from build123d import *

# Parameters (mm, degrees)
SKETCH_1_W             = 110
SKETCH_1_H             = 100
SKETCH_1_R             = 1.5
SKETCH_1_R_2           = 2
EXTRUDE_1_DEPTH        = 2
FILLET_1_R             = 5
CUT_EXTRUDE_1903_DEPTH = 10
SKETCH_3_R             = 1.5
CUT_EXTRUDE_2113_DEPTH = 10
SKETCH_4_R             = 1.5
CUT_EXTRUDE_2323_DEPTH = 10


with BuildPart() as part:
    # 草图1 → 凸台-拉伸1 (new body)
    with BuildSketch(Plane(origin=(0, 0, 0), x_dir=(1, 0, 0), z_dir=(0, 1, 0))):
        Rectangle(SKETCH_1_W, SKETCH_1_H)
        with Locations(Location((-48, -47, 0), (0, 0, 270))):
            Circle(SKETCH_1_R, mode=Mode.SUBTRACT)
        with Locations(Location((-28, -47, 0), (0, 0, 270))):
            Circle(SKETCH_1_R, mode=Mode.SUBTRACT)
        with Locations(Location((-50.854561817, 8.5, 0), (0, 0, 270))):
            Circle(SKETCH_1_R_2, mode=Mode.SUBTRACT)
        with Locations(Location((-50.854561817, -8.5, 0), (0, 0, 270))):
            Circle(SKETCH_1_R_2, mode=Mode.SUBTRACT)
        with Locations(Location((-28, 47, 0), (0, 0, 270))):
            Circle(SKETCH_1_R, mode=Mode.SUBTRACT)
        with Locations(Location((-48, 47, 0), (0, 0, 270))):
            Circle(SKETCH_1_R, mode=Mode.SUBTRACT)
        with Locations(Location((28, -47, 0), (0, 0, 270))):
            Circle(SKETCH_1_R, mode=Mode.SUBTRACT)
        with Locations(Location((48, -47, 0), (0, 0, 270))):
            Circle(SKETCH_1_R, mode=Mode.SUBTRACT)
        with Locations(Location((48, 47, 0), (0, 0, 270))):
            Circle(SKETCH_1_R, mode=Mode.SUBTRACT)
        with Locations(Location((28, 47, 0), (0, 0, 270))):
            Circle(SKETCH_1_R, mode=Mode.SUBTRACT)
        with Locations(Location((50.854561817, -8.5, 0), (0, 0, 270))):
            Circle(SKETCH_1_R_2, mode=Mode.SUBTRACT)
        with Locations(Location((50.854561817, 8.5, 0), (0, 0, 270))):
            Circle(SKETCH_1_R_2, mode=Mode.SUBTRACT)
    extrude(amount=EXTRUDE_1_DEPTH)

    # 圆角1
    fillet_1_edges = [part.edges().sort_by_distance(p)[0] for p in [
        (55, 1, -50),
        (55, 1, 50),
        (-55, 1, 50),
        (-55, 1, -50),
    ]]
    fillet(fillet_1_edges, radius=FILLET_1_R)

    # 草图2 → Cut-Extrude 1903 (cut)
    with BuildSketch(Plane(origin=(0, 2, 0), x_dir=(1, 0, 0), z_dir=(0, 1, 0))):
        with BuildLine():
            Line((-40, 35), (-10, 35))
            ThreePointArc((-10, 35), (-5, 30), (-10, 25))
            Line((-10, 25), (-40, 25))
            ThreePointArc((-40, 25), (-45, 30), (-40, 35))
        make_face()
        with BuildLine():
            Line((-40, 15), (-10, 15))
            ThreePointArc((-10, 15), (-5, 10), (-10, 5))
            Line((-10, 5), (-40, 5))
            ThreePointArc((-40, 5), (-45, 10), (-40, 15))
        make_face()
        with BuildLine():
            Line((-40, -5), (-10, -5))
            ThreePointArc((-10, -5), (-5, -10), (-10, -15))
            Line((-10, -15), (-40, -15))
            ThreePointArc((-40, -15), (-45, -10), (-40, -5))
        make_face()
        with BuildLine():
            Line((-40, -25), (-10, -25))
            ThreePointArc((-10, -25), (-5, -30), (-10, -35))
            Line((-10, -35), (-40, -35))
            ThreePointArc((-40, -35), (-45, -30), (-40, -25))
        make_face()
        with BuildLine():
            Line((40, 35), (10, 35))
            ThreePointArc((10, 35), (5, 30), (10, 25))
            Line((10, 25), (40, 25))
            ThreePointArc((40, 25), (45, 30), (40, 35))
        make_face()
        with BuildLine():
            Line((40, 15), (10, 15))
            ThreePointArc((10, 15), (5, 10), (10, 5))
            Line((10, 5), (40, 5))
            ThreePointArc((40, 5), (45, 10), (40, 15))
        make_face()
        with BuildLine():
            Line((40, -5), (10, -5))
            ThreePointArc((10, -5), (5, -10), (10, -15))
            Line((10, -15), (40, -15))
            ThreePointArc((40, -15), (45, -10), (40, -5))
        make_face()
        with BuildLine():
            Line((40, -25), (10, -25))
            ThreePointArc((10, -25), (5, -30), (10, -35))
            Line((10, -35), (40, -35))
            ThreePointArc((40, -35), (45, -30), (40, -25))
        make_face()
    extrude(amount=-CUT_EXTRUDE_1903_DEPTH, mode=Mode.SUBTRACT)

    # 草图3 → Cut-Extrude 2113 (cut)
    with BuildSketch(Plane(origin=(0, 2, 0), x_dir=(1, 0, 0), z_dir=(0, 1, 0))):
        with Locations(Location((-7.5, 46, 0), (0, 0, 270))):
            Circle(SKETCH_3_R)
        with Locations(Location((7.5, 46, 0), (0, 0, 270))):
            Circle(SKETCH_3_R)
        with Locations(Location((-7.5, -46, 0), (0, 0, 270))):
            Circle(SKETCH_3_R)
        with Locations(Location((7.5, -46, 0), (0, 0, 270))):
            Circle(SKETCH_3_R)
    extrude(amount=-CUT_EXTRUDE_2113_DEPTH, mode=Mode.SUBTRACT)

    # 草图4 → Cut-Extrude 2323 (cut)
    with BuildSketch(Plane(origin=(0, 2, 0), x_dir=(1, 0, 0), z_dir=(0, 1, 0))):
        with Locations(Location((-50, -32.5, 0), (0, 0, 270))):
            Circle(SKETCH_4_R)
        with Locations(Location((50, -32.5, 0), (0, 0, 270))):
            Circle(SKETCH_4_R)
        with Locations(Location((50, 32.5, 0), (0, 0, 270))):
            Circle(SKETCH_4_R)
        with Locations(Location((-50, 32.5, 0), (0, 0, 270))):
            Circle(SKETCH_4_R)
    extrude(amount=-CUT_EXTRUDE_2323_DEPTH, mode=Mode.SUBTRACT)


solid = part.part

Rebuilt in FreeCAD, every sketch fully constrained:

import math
import FreeCAD as App
import Part
import Sketcher
Q = App.Units.Quantity


def edges_at(feature, points):
    """Names of the edges that pass closest to the given points."""
    edges = feature.Shape.Edges
    near = lambda p: min(range(len(edges)), key=lambda i: edges[i].distToShape(Part.Vertex(*p))[0])
    return sorted({f"Edge{near(p) + 1}" for p in points})

doc = App.newDocument("Part")
body = doc.addObject("PartDesign::Body", "Body")

# Sketch on XZ plane
sketch1 = doc.addObject("Sketcher::SketchObject", "Sketch")
body.addObject(sketch1)
sketch1.AttachmentSupport = (doc.XZ_Plane, [""])
sketch1.MapMode = "FlatFace"
sketch1.addGeometry(Part.LineSegment(App.Vector(-55, -50, 0), App.Vector(-55, 50, 0)), False)
sketch1.addGeometry(Part.LineSegment(App.Vector(-55, 50, 0), App.Vector(55, 50, 0)), False)
sketch1.addGeometry(Part.LineSegment(App.Vector(55, 50, 0), App.Vector(55, -50, 0)), False)
sketch1.addGeometry(Part.LineSegment(App.Vector(55, -50, 0), App.Vector(-55, -50, 0)), False)
sketch1.addGeometry(Part.Circle(App.Vector(-48, 47, 0), App.Vector(0, 0, 1), 1.5), False)
sketch1.addGeometry(Part.Circle(App.Vector(-28, 47, 0), App.Vector(0, 0, 1), 1.5), False)
sketch1.addGeometry(Part.Circle(App.Vector(-50.9, 8.5, 0), App.Vector(0, 0, 1), 2), False)
sketch1.addGeometry(Part.Circle(App.Vector(28, 47, 0), App.Vector(0, 0, 1), 1.5), False)
sketch1.addGeometry(Part.Circle(App.Vector(48, 47, 0), App.Vector(0, 0, 1), 1.5), False)
sketch1.addGeometry(Part.Circle(App.Vector(50.9, 8.5, 0), App.Vector(0, 0, 1), 2), False)
sketch1.addGeometry(Part.Circle(App.Vector(-50.9, -8.5, 0), App.Vector(0, 0, 1), 2), False)
sketch1.addGeometry(Part.Circle(App.Vector(-48, -47, 0), App.Vector(0, 0, 1), 1.5), False)
sketch1.addGeometry(Part.Circle(App.Vector(-28, -47, 0), App.Vector(0, 0, 1), 1.5), False)
sketch1.addGeometry(Part.Circle(App.Vector(50.9, -8.5, 0), App.Vector(0, 0, 1), 2), False)
sketch1.addGeometry(Part.Circle(App.Vector(28, -47, 0), App.Vector(0, 0, 1), 1.5), False)
sketch1.addGeometry(Part.Circle(App.Vector(48, -47, 0), App.Vector(0, 0, 1), 1.5), False)
sketch1.addConstraint(Sketcher.Constraint("Coincident", 0, 2, 1, 1))
sketch1.addConstraint(Sketcher.Constraint("Coincident", 1, 2, 2, 1))
sketch1.addConstraint(Sketcher.Constraint("Coincident", 2, 2, 3, 1))
sketch1.addConstraint(Sketcher.Constraint("Coincident", 3, 2, 0, 1))
sketch1.addConstraint(Sketcher.Constraint("Vertical", 0))
sketch1.addConstraint(Sketcher.Constraint("Horizontal", 1))
sketch1.addConstraint(Sketcher.Constraint("Vertical", 2))
sketch1.addConstraint(Sketcher.Constraint("Horizontal", 3))
sketch1.addConstraint(Sketcher.Constraint("Equal", 4, 5))
sketch1.addConstraint(Sketcher.Constraint("Equal", 5, 7))
sketch1.addConstraint(Sketcher.Constraint("Equal", 7, 8))
sketch1.addConstraint(Sketcher.Constraint("Equal", 6, 9))
sketch1.addConstraint(Sketcher.Constraint("Equal", 9, 10))
sketch1.addConstraint(Sketcher.Constraint("Equal", 8, 11))
sketch1.addConstraint(Sketcher.Constraint("Equal", 11, 12))
sketch1.addConstraint(Sketcher.Constraint("Equal", 10, 13))
sketch1.addConstraint(Sketcher.Constraint("Equal", 12, 14))
sketch1.addConstraint(Sketcher.Constraint("Equal", 14, 15))
sketch1.addConstraint(Sketcher.Constraint("Symmetric", 9, 3, 10, 3, -1, 1))
sketch1.addConstraint(Sketcher.Constraint("Symmetric", 8, 3, 11, 3, -1, 1))
sketch1.addConstraint(Sketcher.Constraint("Symmetric", 7, 3, 12, 3, -1, 1))
sketch1.addConstraint(Sketcher.Constraint("Symmetric", 6, 3, 13, 3, -1, 1))
sketch1.addConstraint(Sketcher.Constraint("Symmetric", 5, 3, 14, 3, -1, 1))
sketch1.addConstraint(Sketcher.Constraint("Symmetric", 4, 3, 15, 3, -1, 1))
sketch1.addConstraint(Sketcher.Constraint("Symmetric", 0, 2, 2, 2, -1, 1))
sketch1.addConstraint(Sketcher.Constraint("Symmetric", 5, 3, 7, 3, -2))
sketch1.addConstraint(Sketcher.Constraint("Symmetric", 4, 3, 8, 3, -2))
sketch1.addConstraint(Sketcher.Constraint("Symmetric", 6, 3, 9, 3, -2))
sketch1.addConstraint(Sketcher.Constraint("Horizontal", 4, 3, 5, 3))
sketch1.addConstraint(Sketcher.Constraint("Diameter", 4, Q("3 mm")))
sketch1.addConstraint(Sketcher.Constraint("Diameter", 6, Q("4 mm")))
sketch1.addConstraint(Sketcher.Constraint("DistanceX", 1, 1, 1, 2, Q("110 mm")))
sketch1.addConstraint(Sketcher.Constraint("DistanceY", 0, 1, 0, 2, Q("100 mm")))
sketch1.addConstraint(Sketcher.Constraint("DistanceX", 4, 3, -1, 1, Q("48 mm")))
sketch1.addConstraint(Sketcher.Constraint("DistanceY", -1, 1, 4, 3, Q("47 mm")))
sketch1.addConstraint(Sketcher.Constraint("DistanceX", 5, 3, -1, 1, Q("28 mm")))
sketch1.addConstraint(Sketcher.Constraint("DistanceY", 10, 3, 6, 3, Q("17 mm")))
sketch1.addConstraint(Sketcher.Constraint("DistanceX", 6, 3, -1, 1, Q("50.854562 mm")))
pad1 = doc.addObject("PartDesign::Pad", "Pad")
body.addObject(pad1)
pad1.Profile = sketch1
pad1.Length = 2
pad1.Reversed = True
doc.recompute()

fillet = doc.addObject("PartDesign::Fillet", "Fillet")
body.addObject(fillet)
fillet.Base = (pad1, edges_at(pad1, [
    (55, 1, -50),
    (55, 1, 50),
    (-55, 1, 50),
    (-55, 1, -50),
]))
fillet.Radius = 5

# Sketch on XZ plane
sketch2 = doc.addObject("Sketcher::SketchObject", "Sketch001")
body.addObject(sketch2)
sketch2.AttachmentSupport = (doc.XZ_Plane, [""])
sketch2.MapMode = "FlatFace"
sketch2.AttachmentOffset = App.Placement(App.Vector(0, 0, -2), App.Rotation())
sketch2.addGeometry(Part.LineSegment(App.Vector(-10, -35, 0), App.Vector(-40, -35, 0)), False)
sketch2.addGeometry(Part.ArcOfCircle(Part.Circle(App.Vector(-40, -30, 0), App.Vector(0, 0, 1), 5), math.radians(90), math.radians(270)), False)
sketch2.addGeometry(Part.LineSegment(App.Vector(-40, -25, 0), App.Vector(-10, -25, 0)), False)
sketch2.addGeometry(Part.ArcOfCircle(Part.Circle(App.Vector(-10, -30, 0), App.Vector(0, 0, 1), 5), math.radians(-90), math.radians(90)), False)
sketch2.addGeometry(Part.LineSegment(App.Vector(-10, -15, 0), App.Vector(-40, -15, 0)), False)
sketch2.addGeometry(Part.ArcOfCircle(Part.Circle(App.Vector(-40, -10, 0), App.Vector(0, 0, 1), 5), math.radians(90), math.radians(270)), False)
sketch2.addGeometry(Part.LineSegment(App.Vector(-40, -5, 0), App.Vector(-10, -5, 0)), False)
sketch2.addGeometry(Part.ArcOfCircle(Part.Circle(App.Vector(-10, -10, 0), App.Vector(0, 0, 1), 5), math.radians(-90), math.radians(90)), False)
sketch2.addGeometry(Part.LineSegment(App.Vector(-10, 5, 0), App.Vector(-40, 5, 0)), False)
sketch2.addGeometry(Part.ArcOfCircle(Part.Circle(App.Vector(-40, 10, 0), App.Vector(0, 0, 1), 5), math.radians(90), math.radians(270)), False)
sketch2.addGeometry(Part.LineSegment(App.Vector(-40, 15, 0), App.Vector(-10, 15, 0)), False)
sketch2.addGeometry(Part.ArcOfCircle(Part.Circle(App.Vector(-10, 10, 0), App.Vector(0, 0, 1), 5), math.radians(-90), math.radians(90)), False)
sketch2.addGeometry(Part.LineSegment(App.Vector(-10, 25, 0), App.Vector(-40, 25, 0)), False)
sketch2.addGeometry(Part.ArcOfCircle(Part.Circle(App.Vector(-40, 30, 0), App.Vector(0, 0, 1), 5), math.radians(90), math.radians(270)), False)
sketch2.addGeometry(Part.LineSegment(App.Vector(-40, 35, 0), App.Vector(-10, 35, 0)), False)
sketch2.addGeometry(Part.ArcOfCircle(Part.Circle(App.Vector(-10, 30, 0), App.Vector(0, 0, 1), 5), math.radians(-90), math.radians(90)), False)
sketch2.addGeometry(Part.LineSegment(App.Vector(40, -35, 0), App.Vector(10, -35, 0)), False)
sketch2.addGeometry(Part.ArcOfCircle(Part.Circle(App.Vector(10, -30, 0), App.Vector(0, 0, 1), 5), math.radians(90), math.radians(270)), False)
sketch2.addGeometry(Part.LineSegment(App.Vector(10, -25, 0), App.Vector(40, -25, 0)), False)
sketch2.addGeometry(Part.ArcOfCircle(Part.Circle(App.Vector(40, -30, 0), App.Vector(0, 0, 1), 5), math.radians(-90), math.radians(90)), False)
sketch2.addGeometry(Part.LineSegment(App.Vector(40, -15, 0), App.Vector(10, -15, 0)), False)
sketch2.addGeometry(Part.ArcOfCircle(Part.Circle(App.Vector(10, -10, 0), App.Vector(0, 0, 1), 5), math.radians(90), math.radians(270)), False)
sketch2.addGeometry(Part.LineSegment(App.Vector(10, -5, 0), App.Vector(40, -5, 0)), False)
sketch2.addGeometry(Part.ArcOfCircle(Part.Circle(App.Vector(40, -10, 0), App.Vector(0, 0, 1), 5), math.radians(-90), math.radians(90)), False)
sketch2.addGeometry(Part.LineSegment(App.Vector(40, 5, 0), App.Vector(10, 5, 0)), False)
sketch2.addGeometry(Part.ArcOfCircle(Part.Circle(App.Vector(10, 10, 0), App.Vector(0, 0, 1), 5), math.radians(90), math.radians(270)), False)
sketch2.addGeometry(Part.LineSegment(App.Vector(10, 15, 0), App.Vector(40, 15, 0)), False)
sketch2.addGeometry(Part.ArcOfCircle(Part.Circle(App.Vector(40, 10, 0), App.Vector(0, 0, 1), 5), math.radians(-90), math.radians(90)), False)
sketch2.addGeometry(Part.LineSegment(App.Vector(40, 25, 0), App.Vector(10, 25, 0)), False)
sketch2.addGeometry(Part.ArcOfCircle(Part.Circle(App.Vector(10, 30, 0), App.Vector(0, 0, 1), 5), math.radians(90), math.radians(270)), False)
sketch2.addGeometry(Part.LineSegment(App.Vector(10, 35, 0), App.Vector(40, 35, 0)), False)
sketch2.addGeometry(Part.ArcOfCircle(Part.Circle(App.Vector(40, 30, 0), App.Vector(0, 0, 1), 5), math.radians(-90), math.radians(90)), False)
sketch2.addConstraint(Sketcher.Constraint("Tangent", 0, 2, 1, 2))
sketch2.addConstraint(Sketcher.Constraint("Tangent", 1, 1, 2, 1))
sketch2.addConstraint(Sketcher.Constraint("Tangent", 2, 2, 3, 2))
sketch2.addConstraint(Sketcher.Constraint("Tangent", 3, 1, 0, 1))
sketch2.addConstraint(Sketcher.Constraint("Tangent", 4, 2, 5, 2))
sketch2.addConstraint(Sketcher.Constraint("Tangent", 5, 1, 6, 1))
sketch2.addConstraint(Sketcher.Constraint("Tangent", 6, 2, 7, 2))
sketch2.addConstraint(Sketcher.Constraint("Tangent", 7, 1, 4, 1))
sketch2.addConstraint(Sketcher.Constraint("Tangent", 8, 2, 9, 2))
sketch2.addConstraint(Sketcher.Constraint("Tangent", 9, 1, 10, 1))
sketch2.addConstraint(Sketcher.Constraint("Tangent", 10, 2, 11, 2))
sketch2.addConstraint(Sketcher.Constraint("Tangent", 11, 1, 8, 1))
sketch2.addConstraint(Sketcher.Constraint("Tangent", 12, 2, 13, 2))
sketch2.addConstraint(Sketcher.Constraint("Tangent", 13, 1, 14, 1))
sketch2.addConstraint(Sketcher.Constraint("Tangent", 14, 2, 15, 2))
sketch2.addConstraint(Sketcher.Constraint("Tangent", 15, 1, 12, 1))
sketch2.addConstraint(Sketcher.Constraint("Tangent", 16, 2, 17, 2))
sketch2.addConstraint(Sketcher.Constraint("Tangent", 17, 1, 18, 1))
sketch2.addConstraint(Sketcher.Constraint("Tangent", 18, 2, 19, 2))
sketch2.addConstraint(Sketcher.Constraint("Tangent", 19, 1, 16, 1))
sketch2.addConstraint(Sketcher.Constraint("Tangent", 20, 2, 21, 2))
sketch2.addConstraint(Sketcher.Constraint("Tangent", 21, 1, 22, 1))
sketch2.addConstraint(Sketcher.Constraint("Tangent", 22, 2, 23, 2))
sketch2.addConstraint(Sketcher.Constraint("Tangent", 23, 1, 20, 1))
sketch2.addConstraint(Sketcher.Constraint("Tangent", 24, 2, 25, 2))
sketch2.addConstraint(Sketcher.Constraint("Tangent", 25, 1, 26, 1))
sketch2.addConstraint(Sketcher.Constraint("Tangent", 26, 2, 27, 2))
sketch2.addConstraint(Sketcher.Constraint("Tangent", 27, 1, 24, 1))
sketch2.addConstraint(Sketcher.Constraint("Tangent", 28, 2, 29, 2))
sketch2.addConstraint(Sketcher.Constraint("Tangent", 29, 1, 30, 1))
sketch2.addConstraint(Sketcher.Constraint("Tangent", 30, 2, 31, 2))
sketch2.addConstraint(Sketcher.Constraint("Tangent", 31, 1, 28, 1))
sketch2.addConstraint(Sketcher.Constraint("Horizontal", 0))
sketch2.addConstraint(Sketcher.Constraint("Horizontal", 2))
sketch2.addConstraint(Sketcher.Constraint("Horizontal", 4))
sketch2.addConstraint(Sketcher.Constraint("Horizontal", 6))
sketch2.addConstraint(Sketcher.Constraint("Horizontal", 8))
sketch2.addConstraint(Sketcher.Constraint("Horizontal", 10))
sketch2.addConstraint(Sketcher.Constraint("Horizontal", 12))
sketch2.addConstraint(Sketcher.Constraint("Horizontal", 14))
sketch2.addConstraint(Sketcher.Constraint("Horizontal", 16))
sketch2.addConstraint(Sketcher.Constraint("Horizontal", 18))
sketch2.addConstraint(Sketcher.Constraint("Horizontal", 20))
sketch2.addConstraint(Sketcher.Constraint("Horizontal", 22))
sketch2.addConstraint(Sketcher.Constraint("Horizontal", 24))
sketch2.addConstraint(Sketcher.Constraint("Horizontal", 26))
sketch2.addConstraint(Sketcher.Constraint("Horizontal", 28))
sketch2.addConstraint(Sketcher.Constraint("Horizontal", 30))
sketch2.addConstraint(Sketcher.Constraint("Equal", 3, 5))
sketch2.addConstraint(Sketcher.Constraint("Equal", 7, 9))
sketch2.addConstraint(Sketcher.Constraint("Equal", 11, 13))
sketch2.addConstraint(Sketcher.Constraint("Equal", 15, 17))
sketch2.addConstraint(Sketcher.Constraint("Equal", 19, 21))
sketch2.addConstraint(Sketcher.Constraint("Equal", 23, 25))
sketch2.addConstraint(Sketcher.Constraint("Equal", 27, 29))
sketch2.addConstraint(Sketcher.Constraint("Symmetric", 15, 3, 17, 3, -1, 1))
sketch2.addConstraint(Sketcher.Constraint("Symmetric", 11, 3, 21, 3, -1, 1))
sketch2.addConstraint(Sketcher.Constraint("Symmetric", 7, 3, 25, 3, -1, 1))
sketch2.addConstraint(Sketcher.Constraint("Symmetric", 3, 3, 29, 3, -1, 1))
sketch2.addConstraint(Sketcher.Constraint("Symmetric", 3, 3, 17, 3, -2))
sketch2.addConstraint(Sketcher.Constraint("Symmetric", 7, 3, 21, 3, -2))
sketch2.addConstraint(Sketcher.Constraint("Vertical", 1, 3, 5, 3))
sketch2.addConstraint(Sketcher.Constraint("Vertical", 3, 3, 7, 3))
sketch2.addConstraint(Sketcher.Constraint("Vertical", 5, 3, 9, 3))
sketch2.addConstraint(Sketcher.Constraint("Vertical", 9, 3, 13, 3))
sketch2.addConstraint(Sketcher.Constraint("Vertical", 19, 3, 23, 3))
sketch2.addConstraint(Sketcher.Constraint("Vertical", 23, 3, 27, 3))
sketch2.addConstraint(Sketcher.Constraint("Vertical", 27, 3, 31, 3))
sketch2.addConstraint(Sketcher.Constraint("Equal", 14, 16))
sketch2.addConstraint(Sketcher.Constraint("Radius", 1, Q("5 mm")))
sketch2.addConstraint(Sketcher.Constraint("DistanceX", 0, 2, 0, 1, Q("30 mm")))
sketch2.addConstraint(Sketcher.Constraint("DistanceX", 1, 3, -1, 1, Q("40 mm")))
sketch2.addConstraint(Sketcher.Constraint("DistanceY", 1, 3, -1, 1, Q("30 mm")))
sketch2.addConstraint(Sketcher.Constraint("DistanceY", 5, 3, -1, 1, Q("10 mm")))
pocket1 = doc.addObject("PartDesign::Pocket", "Pocket")
body.addObject(pocket1)
pocket1.Profile = sketch2
pocket1.Length = 10
pocket1.Reversed = True

# Sketch on XZ plane
sketch3 = doc.addObject("Sketcher::SketchObject", "Sketch002")
body.addObject(sketch3)
sketch3.AttachmentSupport = (doc.XZ_Plane, [""])
sketch3.MapMode = "FlatFace"
sketch3.AttachmentOffset = App.Placement(App.Vector(0, 0, -2), App.Rotation())
sketch3.addGeometry(Part.Circle(App.Vector(-7.5, -46, 0), App.Vector(0, 0, 1), 1.5), False)
sketch3.addGeometry(Part.Circle(App.Vector(7.5, -46, 0), App.Vector(0, 0, 1), 1.5), False)
sketch3.addGeometry(Part.Circle(App.Vector(-7.5, 46, 0), App.Vector(0, 0, 1), 1.5), False)
sketch3.addGeometry(Part.Circle(App.Vector(7.5, 46, 0), App.Vector(0, 0, 1), 1.5), False)
sketch3.addConstraint(Sketcher.Constraint("Equal", 0, 1))
sketch3.addConstraint(Sketcher.Constraint("Equal", 1, 2))
sketch3.addConstraint(Sketcher.Constraint("Equal", 2, 3))
sketch3.addConstraint(Sketcher.Constraint("Symmetric", 1, 3, 2, 3, -1, 1))
sketch3.addConstraint(Sketcher.Constraint("Symmetric", 0, 3, 3, 3, -1, 1))
sketch3.addConstraint(Sketcher.Constraint("Symmetric", 0, 3, 1, 3, -2))
sketch3.addConstraint(Sketcher.Constraint("Diameter", 0, Q("3 mm")))
sketch3.addConstraint(Sketcher.Constraint("DistanceY", 0, 3, -1, 1, Q("46 mm")))
sketch3.addConstraint(Sketcher.Constraint("DistanceX", 0, 3, 1, 3, Q("15 mm")))
pocket2 = doc.addObject("PartDesign::Pocket", "Pocket001")
body.addObject(pocket2)
pocket2.Profile = sketch3
pocket2.Length = 10
pocket2.Reversed = True

# Sketch on XZ plane
sketch4 = doc.addObject("Sketcher::SketchObject", "Sketch003")
body.addObject(sketch4)
sketch4.AttachmentSupport = (doc.XZ_Plane, [""])
sketch4.MapMode = "FlatFace"
sketch4.AttachmentOffset = App.Placement(App.Vector(0, 0, -2), App.Rotation())
sketch4.addGeometry(Part.Circle(App.Vector(-50, 32.5, 0), App.Vector(0, 0, 1), 1.5), False)
sketch4.addGeometry(Part.Circle(App.Vector(50, 32.5, 0), App.Vector(0, 0, 1), 1.5), False)
sketch4.addGeometry(Part.Circle(App.Vector(50, -32.5, 0), App.Vector(0, 0, 1), 1.5), False)
sketch4.addGeometry(Part.Circle(App.Vector(-50, -32.5, 0), App.Vector(0, 0, 1), 1.5), False)
sketch4.addConstraint(Sketcher.Constraint("Equal", 0, 1))
sketch4.addConstraint(Sketcher.Constraint("Equal", 1, 2))
sketch4.addConstraint(Sketcher.Constraint("Equal", 2, 3))
sketch4.addConstraint(Sketcher.Constraint("Symmetric", 0, 3, 2, 3, -1, 1))
sketch4.addConstraint(Sketcher.Constraint("Symmetric", 1, 3, 3, 3, -1, 1))
sketch4.addConstraint(Sketcher.Constraint("Symmetric", 0, 3, 1, 3, -2))
sketch4.addConstraint(Sketcher.Constraint("Diameter", 0, Q("3 mm")))
sketch4.addConstraint(Sketcher.Constraint("DistanceX", 0, 3, -1, 1, Q("50 mm")))
sketch4.addConstraint(Sketcher.Constraint("DistanceY", 2, 3, 1, 3, Q("65 mm")))
pocket3 = doc.addObject("PartDesign::Pocket", "Pocket002")
body.addObject(pocket3)
pocket3.Profile = sketch4
pocket3.Length = 10
pocket3.Reversed = True

doc.recompute()
